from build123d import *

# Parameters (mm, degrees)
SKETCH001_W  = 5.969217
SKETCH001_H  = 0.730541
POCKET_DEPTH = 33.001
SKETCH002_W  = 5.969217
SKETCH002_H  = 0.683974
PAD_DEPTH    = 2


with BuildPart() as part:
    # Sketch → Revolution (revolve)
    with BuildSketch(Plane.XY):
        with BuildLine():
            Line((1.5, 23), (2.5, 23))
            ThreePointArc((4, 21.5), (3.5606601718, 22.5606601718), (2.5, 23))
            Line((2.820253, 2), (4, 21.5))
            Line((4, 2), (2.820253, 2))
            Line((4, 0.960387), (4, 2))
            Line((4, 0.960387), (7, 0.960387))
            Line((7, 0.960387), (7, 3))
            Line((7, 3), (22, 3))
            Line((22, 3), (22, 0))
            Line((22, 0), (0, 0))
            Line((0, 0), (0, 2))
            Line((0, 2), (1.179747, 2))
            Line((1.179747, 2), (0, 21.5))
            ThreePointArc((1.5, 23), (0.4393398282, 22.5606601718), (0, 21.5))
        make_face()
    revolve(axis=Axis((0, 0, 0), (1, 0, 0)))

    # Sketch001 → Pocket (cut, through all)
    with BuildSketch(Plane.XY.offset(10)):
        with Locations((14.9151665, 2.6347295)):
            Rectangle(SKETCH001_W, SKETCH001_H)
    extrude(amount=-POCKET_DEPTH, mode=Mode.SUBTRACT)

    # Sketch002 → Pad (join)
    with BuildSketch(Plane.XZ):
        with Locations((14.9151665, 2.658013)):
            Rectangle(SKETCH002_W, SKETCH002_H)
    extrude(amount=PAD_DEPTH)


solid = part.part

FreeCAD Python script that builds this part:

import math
import FreeCAD as App
import Part
import Sketcher


def add_polygon(sketch, points):
    """Adds a closed chain of lines whose ends are joined by coincident constraints."""
    first, n = sketch.GeometryCount, len(points)
    for a, b in zip(points, points[1:] + points[:1]):
        sketch.addGeometry(Part.LineSegment(App.Vector(*a, 0), App.Vector(*b, 0)), False)
    for i in range(n):
        sketch.addConstraint(Sketcher.Constraint("Coincident", first + i, 2, first + (i + 1) % n, 1))

doc = App.newDocument("Part")
body = doc.addObject("PartDesign::Body", "Body")

# Sketch on XY plane
sketch1 = body.newObject("Sketcher::SketchObject", "Sketch")
sketch1.AttachmentSupport = (doc.getObject("XY_Plane"), [""])
sketch1.MapMode = "FlatFace"
sketch1.addGeometry(Part.LineSegment(App.Vector(2.5, 23, 0), App.Vector(1.5, 23, 0)), False)
sketch1.addGeometry(Part.ArcOfCircle(Part.Circle(App.Vector(1.5, 21.5, 0), App.Vector(0, 0, 1), 1.5), math.radians(90), math.radians(180)), False)
sketch1.addGeometry(Part.LineSegment(App.Vector(0, 21.5, 0), App.Vector(1.179747, 2, 0)), False)
sketch1.addGeometry(Part.LineSegment(App.Vector(1.179747, 2, 0), App.Vector(0, 2, 0)), False)
sketch1.addGeometry(Part.LineSegment(App.Vector(0, 2, 0), App.Vector(0, 0, 0)), False)
sketch1.addGeometry(Part.LineSegment(App.Vector(0, 0, 0), App.Vector(22, 0, 0)), False)
sketch1.addGeometry(Part.LineSegment(App.Vector(22, 0, 0), App.Vector(22, 3, 0)), False)
sketch1.addGeometry(Part.LineSegment(App.Vector(22, 3, 0), App.Vector(7, 3, 0)), False)
sketch1.addGeometry(Part.LineSegment(App.Vector(7, 3, 0), App.Vector(7, 0.960387, 0)), False)
sketch1.addGeometry(Part.LineSegment(App.Vector(7, 0.960387, 0), App.Vector(4, 0.960387, 0)), False)
sketch1.addGeometry(Part.LineSegment(App.Vector(4, 0.960387, 0), App.Vector(4, 2, 0)), False)
sketch1.addGeometry(Part.LineSegment(App.Vector(4, 2, 0), App.Vector(2.820253, 2, 0)), False)
sketch1.addGeometry(Part.LineSegment(App.Vector(2.820253, 2, 0), App.Vector(4, 21.5, 0)), False)
sketch1.addGeometry(Part.ArcOfCircle(Part.Circle(App.Vector(2.5, 21.5, 0), App.Vector(0, 0, 1), 1.5), math.radians(0), math.radians(90)), False)
sketch1.addConstraint(Sketcher.Constraint("Tangent", 0, 2, 1, 1))
sketch1.addConstraint(Sketcher.Constraint("Coincident", 1, 2, 2, 1))
sketch1.addConstraint(Sketcher.Constraint("Coincident", 2, 2, 3, 1))
sketch1.addConstraint(Sketcher.Constraint("Coincident", 3, 2, 4, 1))
sketch1.addConstraint(Sketcher.Constraint("Coincident", 4, 2, 5, 1))
sketch1.addConstraint(Sketcher.Constraint("Coincident", 5, 2, 6, 1))
sketch1.addConstraint(Sketcher.Constraint("Coincident", 6, 2, 7, 1))
sketch1.addConstraint(Sketcher.Constraint("Coincident", 7, 2, 8, 1))
sketch1.addConstraint(Sketcher.Constraint("Coincident", 8, 2, 9, 1))
sketch1.addConstraint(Sketcher.Constraint("Coincident", 9, 2, 10, 1))
sketch1.addConstraint(Sketcher.Constraint("Coincident", 10, 2, 11, 1))
sketch1.addConstraint(Sketcher.Constraint("Coincident", 11, 2, 12, 1))
sketch1.addConstraint(Sketcher.Constraint("Coincident", 12, 2, 13, 1))
sketch1.addConstraint(Sketcher.Constraint("Tangent", 13, 2, 0, 1))
sketch1.addConstraint(Sketcher.Constraint("Horizontal", 0))
sketch1.addConstraint(Sketcher.Constraint("Horizontal", 3))
sketch1.addConstraint(Sketcher.Constraint("Vertical", 4))
sketch1.addConstraint(Sketcher.Constraint("Horizontal", 5))
sketch1.addConstraint(Sketcher.Constraint("Vertical", 6))
sketch1.addConstraint(Sketcher.Constraint("Horizontal", 7))
sketch1.addConstraint(Sketcher.Constraint("Vertical", 8))
sketch1.addConstraint(Sketcher.Constraint("Horizontal", 9))
sketch1.addConstraint(Sketcher.Constraint("Vertical", 10))
sketch1.addConstraint(Sketcher.Constraint("Horizontal", 11))
sketch1.addConstraint(Sketcher.Constraint("Coincident", 4, 2, -1, 1))
sketch1.addConstraint(Sketcher.Constraint("Equal", 1, 13))
sketch1.addConstraint(Sketcher.Constraint("PointOnObject", 1, 2, -2))
sketch1.addConstraint(Sketcher.Constraint("Horizontal", 13, 3, 1, 2))
sketch1.addConstraint(Sketcher.Constraint("Horizontal", 3, 2, 10, 2))
sketch1.addConstraint(Sketcher.Constraint("Horizontal", 1, 2, 12, 2))
sketch1.addConstraint(Sketcher.Constraint("Vertical", 10, 2, 12, 2))
sketch1.addConstraint(Sketcher.Constraint("Equal", 3, 11))
sketch1.addConstraint(Sketcher.Constraint("Equal", 9, 6))
sketch1.addConstraint(Sketcher.Constraint("Radius", 1, 1.5))
sketch1.addConstraint(Sketcher.Constraint("DistanceX", 0, 2, 0, 1, 1.0))
sketch1.addConstraint(Sketcher.Constraint("DistanceX", 5, 1, 5, 2, 22.0))
sketch1.addConstraint(Sketcher.Constraint("DistanceX", 7, 2, 7, 1, 15.0))
sketch1.addConstraint(Sketcher.Constraint("DistanceY", 4, 2, 4, 1, 2.0))
sketch1.addConstraint(Sketcher.Constraint("DistanceY", -1, 1, 0, 2, 23.0))
sketch1.addConstraint(Sketcher.Constraint("DistanceX", 3, 2, 3, 1, 1.179747))
sketch1.addConstraint(Sketcher.Constraint("DistanceY", 8, 2, 8, 1, 2.039613))
revolution = body.newObject("PartDesign::Revolution", "Revolution")
revolution.Profile = sketch1
revolution.ReferenceAxis = (sketch1, ["H_Axis"])
revolution.Angle = 360

# Sketch on XY plane
sketch2 = body.newObject("Sketcher::SketchObject", "Sketch001")
sketch2.AttachmentSupport = (doc.getObject("XY_Plane"), [""])
sketch2.MapMode = "FlatFace"
sketch2.AttachmentOffset = App.Placement(App.Vector(0, 0, 10), App.Rotation())
add_polygon(sketch2, [(11.930558, 3), (11.930558, 2.269459), (17.899775, 2.269459), (17.899775, 3)])  # lines 0-3
sketch2.addConstraint(Sketcher.Constraint("Vertical", 0))
sketch2.addConstraint(Sketcher.Constraint("Horizontal", 1))
sketch2.addConstraint(Sketcher.Constraint("Vertical", 2))
sketch2.addConstraint(Sketcher.Constraint("Horizontal", 3))
sketch2.addConstraint(Sketcher.Constraint("DistanceY", -1, 1, 2, 2, 3.0))
sketch2.addConstraint(Sketcher.Constraint("DistanceY", 0, 2, 0, 1, 0.730541))
sketch2.addConstraint(Sketcher.Constraint("DistanceX", 1, 1, 1, 2, 5.969217))
sketch2.addConstraint(Sketcher.Constraint("DistanceX", -1, 1, 0, 2, 11.930558))
pocket1 = body.newObject("PartDesign::Pocket", "Pocket")
pocket1.Profile = sketch2
pocket1.Type = "ThroughAll"

# Sketch on XZ plane
sketch3 = body.newObject("Sketcher::SketchObject", "Sketch002")
sketch3.AttachmentSupport = (doc.getObject("XZ_Plane"), [""])
sketch3.MapMode = "FlatFace"
add_polygon(sketch3, [(11.930558, 3), (11.930558, 2.316026), (17.899775, 2.316026), (17.899775, 3)])  # lines 0-3
sketch3.addConstraint(Sketcher.Constraint("Vertical", 0))
sketch3.addConstraint(Sketcher.Constraint("Horizontal", 1))
sketch3.addConstraint(Sketcher.Constraint("Vertical", 2))
sketch3.addConstraint(Sketcher.Constraint("Horizontal", 3))
sketch3.addConstraint(Sketcher.Constraint("DistanceY", -1, 1, 2, 2, 3.0))
sketch3.addConstraint(Sketcher.Constraint("DistanceX", 1, 1, 1, 2, 5.969217))
sketch3.addConstraint(Sketcher.Constraint("DistanceY", 0, 2, 0, 1, 0.683974))
sketch3.addConstraint(Sketcher.Constraint("DistanceX", -1, 1, 0, 2, 11.930558))
pad1 = body.newObject("PartDesign::Pad", "Pad")
pad1.Profile = sketch3
pad1.Length = 2

doc.recompute()
